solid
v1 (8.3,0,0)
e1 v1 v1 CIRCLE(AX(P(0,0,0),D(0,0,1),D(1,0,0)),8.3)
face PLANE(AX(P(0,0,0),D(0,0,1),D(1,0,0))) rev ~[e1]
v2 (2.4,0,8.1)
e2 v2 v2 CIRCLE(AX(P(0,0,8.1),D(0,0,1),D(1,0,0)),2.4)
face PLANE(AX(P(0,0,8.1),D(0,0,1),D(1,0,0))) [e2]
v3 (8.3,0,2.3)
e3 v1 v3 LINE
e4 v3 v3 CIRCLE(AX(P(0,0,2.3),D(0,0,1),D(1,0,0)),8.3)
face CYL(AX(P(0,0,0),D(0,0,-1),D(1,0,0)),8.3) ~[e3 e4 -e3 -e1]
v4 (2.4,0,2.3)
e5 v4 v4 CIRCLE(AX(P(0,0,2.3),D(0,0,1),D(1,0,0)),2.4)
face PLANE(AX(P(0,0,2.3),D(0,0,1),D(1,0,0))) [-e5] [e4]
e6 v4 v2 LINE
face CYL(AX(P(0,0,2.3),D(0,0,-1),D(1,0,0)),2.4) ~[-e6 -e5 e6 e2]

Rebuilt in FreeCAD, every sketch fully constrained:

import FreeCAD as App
import Part
import Sketcher

doc = App.newDocument("Part")
body = doc.addObject("PartDesign::Body", "Body")

# Sketch on XY plane
sketch1 = body.newObject("Sketcher::SketchObject", "Sketch")
sketch1.AttachmentSupport = (doc.getObject("XY_Plane"), [""])
sketch1.MapMode = "FlatFace"
sketch1.addGeometry(Part.Circle(App.Vector(0, 0, 0), App.Vector(0, 0, 1), 8.3), False)
sketch1.addConstraint([
    Sketcher.Constraint("Coincident", 0, 3, -1, 1),
    Sketcher.Constraint("Diameter", 0, 16.6),
])
pad1 = body.newObject("PartDesign::Pad", "Pad")
pad1.Profile = sketch1
pad1.Length = 2.3

# Sketch on XY plane
sketch2 = body.newObject("Sketcher::SketchObject", "Sketch001")
sketch2.AttachmentSupport = (doc.getObject("XY_Plane"), [""])
sketch2.MapMode = "FlatFace"
sketch2.AttachmentOffset = App.Placement(App.Vector(0, 0, 2.3), App.Rotation())
sketch2.addGeometry(Part.Circle(App.Vector(0, 0, 0), App.Vector(0, 0, 1), 2.4), False)
sketch2.addConstraint([
    Sketcher.Constraint("Coincident", 0, 3, -1, 1),
    Sketcher.Constraint("Diameter", 0, 4.8),
])
pad2 = body.newObject("PartDesign::Pad", "Pad001")
pad2.Profile = sketch2
pad2.Length = 5.8

doc.recompute()
